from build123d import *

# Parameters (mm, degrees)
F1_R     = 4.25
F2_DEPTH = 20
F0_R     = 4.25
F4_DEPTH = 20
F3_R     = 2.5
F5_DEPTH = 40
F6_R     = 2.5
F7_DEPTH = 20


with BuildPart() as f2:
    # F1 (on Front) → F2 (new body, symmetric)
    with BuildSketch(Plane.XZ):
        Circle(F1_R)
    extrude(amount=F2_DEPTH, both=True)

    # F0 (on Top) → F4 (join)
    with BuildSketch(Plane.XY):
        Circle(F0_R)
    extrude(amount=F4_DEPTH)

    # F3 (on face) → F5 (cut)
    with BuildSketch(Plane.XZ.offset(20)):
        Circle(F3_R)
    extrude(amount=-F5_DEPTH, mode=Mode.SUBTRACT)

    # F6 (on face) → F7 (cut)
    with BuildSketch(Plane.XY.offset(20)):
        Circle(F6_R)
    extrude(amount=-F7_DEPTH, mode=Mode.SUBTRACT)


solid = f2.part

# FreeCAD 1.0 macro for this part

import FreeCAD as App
import Part
import Sketcher

V = App.Vector
Q = App.Units.Quantity

doc = App.newDocument("Part")
body = doc.addObject("PartDesign::Body", "Body")

# Sketch on XZ plane
sketch1 = body.newObject("Sketcher::SketchObject", "Sketch")
sketch1.AttachmentSupport = (doc.getObject("XZ_Plane"), [""])
sketch1.MapMode = "FlatFace"
sketch1.addGeometry(Part.Circle(V(0, 0, 0), V(0, 0, 1), 4.2), False)
sketch1.addConstraint(Sketcher.Constraint("Coincident", 0, 3, -1, 1))
sketch1.addConstraint(Sketcher.Constraint("Diameter", 0, Q("8.5 mm")))
pad1 = body.newObject("PartDesign::Pad", "Pad")
pad1.Profile = sketch1
pad1.Length = 40
pad1.Midplane = True

# Sketch on XY plane
sketch2 = body.newObject("Sketcher::SketchObject", "Sketch001")
sketch2.AttachmentSupport = (doc.getObject("XY_Plane"), [""])
sketch2.MapMode = "FlatFace"
sketch2.addGeometry(Part.Circle(V(0, 0, 0), V(0, 0, 1), 4.2), False)
sketch2.addConstraint(Sketcher.Constraint("Coincident", 0, 3, -1, 1))
sketch2.addConstraint(Sketcher.Constraint("Diameter", 0, Q("8.5 mm")))
pad2 = body.newObject("PartDesign::Pad", "Pad001")
pad2.Profile = sketch2
pad2.Length = 20

# Sketch on XZ plane
sketch3 = body.newObject("Sketcher::SketchObject", "Sketch002")
sketch3.AttachmentSupport = (doc.getObject("XZ_Plane"), [""])
sketch3.MapMode = "FlatFace"
sketch3.AttachmentOffset = App.Placement(V(0, 0, 20), App.Rotation())
sketch3.addGeometry(Part.Circle(V(0, 0, 0), V(0, 0, 1), 2.5), False)
sketch3.addConstraint(Sketcher.Constraint("Coincident", 0, 3, -1, 1))
sketch3.addConstraint(Sketcher.Constraint("Diameter", 0, Q("5 mm")))
pocket1 = body.newObject("PartDesign::Pocket", "Pocket")
pocket1.Profile = sketch3
pocket1.Length = 40

# Sketch on XY plane
sketch4 = body.newObject("Sketcher::SketchObject", "Sketch003")
sketch4.AttachmentSupport = (doc.getObject("XY_Plane"), [""])
sketch4.MapMode = "FlatFace"
sketch4.AttachmentOffset = App.Placement(V(0, 0, 20), App.Rotation())
sketch4.addGeometry(Part.Circle(V(0, 0, 0), V(0, 0, 1), 2.5), False)
sketch4.addConstraint(Sketcher.Constraint("Coincident", 0, 3, -1, 1))
sketch4.addConstraint(Sketcher.Constraint("Diameter", 0, Q("5 mm")))
pocket2 = body.newObject("PartDesign::Pocket", "Pocket001")
pocket2.Profile = sketch4
pocket2.Length = 20

doc.recompute()
